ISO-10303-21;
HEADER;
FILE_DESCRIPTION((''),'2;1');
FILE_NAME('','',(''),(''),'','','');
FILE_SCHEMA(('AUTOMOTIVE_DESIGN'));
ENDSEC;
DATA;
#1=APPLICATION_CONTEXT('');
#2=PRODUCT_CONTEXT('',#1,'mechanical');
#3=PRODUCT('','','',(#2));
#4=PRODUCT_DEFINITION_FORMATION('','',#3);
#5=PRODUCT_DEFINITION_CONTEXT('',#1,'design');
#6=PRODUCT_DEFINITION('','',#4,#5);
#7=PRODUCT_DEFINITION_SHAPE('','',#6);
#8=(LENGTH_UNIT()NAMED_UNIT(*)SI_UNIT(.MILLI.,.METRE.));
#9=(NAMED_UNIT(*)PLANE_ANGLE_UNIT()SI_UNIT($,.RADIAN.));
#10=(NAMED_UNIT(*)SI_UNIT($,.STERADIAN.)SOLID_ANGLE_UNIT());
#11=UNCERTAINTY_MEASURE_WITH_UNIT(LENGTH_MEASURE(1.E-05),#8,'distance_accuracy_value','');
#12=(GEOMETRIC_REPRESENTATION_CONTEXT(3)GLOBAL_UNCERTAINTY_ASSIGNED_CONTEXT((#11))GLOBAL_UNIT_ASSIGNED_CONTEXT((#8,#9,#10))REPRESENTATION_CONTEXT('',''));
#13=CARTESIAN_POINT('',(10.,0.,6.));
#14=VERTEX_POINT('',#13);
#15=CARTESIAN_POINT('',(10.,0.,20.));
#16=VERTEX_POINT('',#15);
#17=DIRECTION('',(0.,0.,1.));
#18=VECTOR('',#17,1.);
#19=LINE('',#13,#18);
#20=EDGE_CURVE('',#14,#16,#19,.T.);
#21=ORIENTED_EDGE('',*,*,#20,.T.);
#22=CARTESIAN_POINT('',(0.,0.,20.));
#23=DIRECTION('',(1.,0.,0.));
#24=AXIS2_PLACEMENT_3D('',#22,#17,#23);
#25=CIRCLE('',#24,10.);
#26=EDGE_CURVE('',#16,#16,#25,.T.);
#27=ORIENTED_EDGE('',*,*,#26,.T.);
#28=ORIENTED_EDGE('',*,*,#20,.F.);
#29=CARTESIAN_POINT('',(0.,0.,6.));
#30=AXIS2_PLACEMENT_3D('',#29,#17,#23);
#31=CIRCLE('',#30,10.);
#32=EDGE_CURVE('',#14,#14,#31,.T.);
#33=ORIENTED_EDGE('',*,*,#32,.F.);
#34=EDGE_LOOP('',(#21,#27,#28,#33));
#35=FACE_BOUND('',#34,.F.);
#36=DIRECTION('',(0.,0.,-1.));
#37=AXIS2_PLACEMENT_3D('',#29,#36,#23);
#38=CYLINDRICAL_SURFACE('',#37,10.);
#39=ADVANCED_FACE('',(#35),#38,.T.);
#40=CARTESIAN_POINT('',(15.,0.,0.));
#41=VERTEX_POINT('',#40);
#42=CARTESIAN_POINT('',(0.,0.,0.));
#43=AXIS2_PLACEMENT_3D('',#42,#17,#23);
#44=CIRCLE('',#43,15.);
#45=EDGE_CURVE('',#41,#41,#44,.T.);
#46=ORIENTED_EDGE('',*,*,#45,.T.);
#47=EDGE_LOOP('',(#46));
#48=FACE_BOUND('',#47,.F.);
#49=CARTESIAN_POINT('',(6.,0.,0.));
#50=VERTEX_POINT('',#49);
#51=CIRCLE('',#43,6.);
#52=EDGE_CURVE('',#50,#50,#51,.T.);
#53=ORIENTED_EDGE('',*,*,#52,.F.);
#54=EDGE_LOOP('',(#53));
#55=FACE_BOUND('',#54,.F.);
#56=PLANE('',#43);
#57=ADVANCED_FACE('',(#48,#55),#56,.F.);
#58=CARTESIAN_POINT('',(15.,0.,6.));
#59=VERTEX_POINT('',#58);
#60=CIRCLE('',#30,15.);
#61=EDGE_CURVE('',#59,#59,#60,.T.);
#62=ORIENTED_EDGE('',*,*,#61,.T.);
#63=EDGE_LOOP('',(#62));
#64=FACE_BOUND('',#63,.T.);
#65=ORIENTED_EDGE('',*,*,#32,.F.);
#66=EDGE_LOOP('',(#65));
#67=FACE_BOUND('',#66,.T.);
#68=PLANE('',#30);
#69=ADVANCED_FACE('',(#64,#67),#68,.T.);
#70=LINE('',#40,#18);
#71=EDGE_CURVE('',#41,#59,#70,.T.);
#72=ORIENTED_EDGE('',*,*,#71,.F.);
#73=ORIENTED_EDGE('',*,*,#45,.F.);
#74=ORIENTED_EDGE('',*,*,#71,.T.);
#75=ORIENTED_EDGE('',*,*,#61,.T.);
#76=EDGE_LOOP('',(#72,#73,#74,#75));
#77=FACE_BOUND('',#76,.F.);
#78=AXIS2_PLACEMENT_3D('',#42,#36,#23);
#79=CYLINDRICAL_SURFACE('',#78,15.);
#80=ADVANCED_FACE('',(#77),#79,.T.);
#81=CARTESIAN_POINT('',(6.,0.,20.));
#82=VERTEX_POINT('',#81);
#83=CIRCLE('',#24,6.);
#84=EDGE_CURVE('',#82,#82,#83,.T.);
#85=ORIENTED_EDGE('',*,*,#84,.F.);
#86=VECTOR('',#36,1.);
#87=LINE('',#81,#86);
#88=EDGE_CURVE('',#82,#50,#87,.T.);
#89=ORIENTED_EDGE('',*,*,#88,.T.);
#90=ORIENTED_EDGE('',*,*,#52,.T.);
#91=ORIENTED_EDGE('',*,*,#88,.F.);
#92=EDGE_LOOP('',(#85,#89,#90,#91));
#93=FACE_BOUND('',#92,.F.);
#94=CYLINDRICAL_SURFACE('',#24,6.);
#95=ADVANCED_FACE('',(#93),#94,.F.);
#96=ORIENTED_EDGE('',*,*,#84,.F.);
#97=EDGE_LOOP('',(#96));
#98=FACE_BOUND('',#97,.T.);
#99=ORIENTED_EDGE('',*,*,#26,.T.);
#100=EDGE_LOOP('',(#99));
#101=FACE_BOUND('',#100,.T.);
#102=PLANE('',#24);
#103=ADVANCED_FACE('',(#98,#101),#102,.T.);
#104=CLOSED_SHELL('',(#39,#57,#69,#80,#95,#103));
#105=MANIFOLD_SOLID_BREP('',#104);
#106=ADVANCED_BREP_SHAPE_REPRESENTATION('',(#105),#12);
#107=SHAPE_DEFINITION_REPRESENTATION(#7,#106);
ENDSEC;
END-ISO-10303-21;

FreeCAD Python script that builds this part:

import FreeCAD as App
import Part
import Sketcher

V = App.Vector

doc = App.newDocument("Part")
body = doc.addObject("PartDesign::Body", "Body")

# Sketch on XY plane
sketch1 = body.newObject("Sketcher::SketchObject", "Sketch")
sketch1.AttachmentSupport = (doc.getObject("XY_Plane"), [""])
sketch1.MapMode = "FlatFace"
sketch1.addGeometry(Part.Circle(V(0, 0, 0), V(0, 0, 1), 15), False)
sketch1.addConstraint([
    Sketcher.Constraint("Coincident", 0, 3, -1, 1),
    Sketcher.Constraint("Diameter", 0, 30.0),
])
pad1 = body.newObject("PartDesign::Pad", "Pad")
pad1.Profile = sketch1
pad1.Length = 6

# Sketch on XY plane
sketch2 = body.newObject("Sketcher::SketchObject", "Sketch001")
sketch2.AttachmentSupport = (doc.getObject("XY_Plane"), [""])
sketch2.MapMode = "FlatFace"
sketch2.AttachmentOffset = App.Placement(V(0, 0, 6), App.Rotation())
sketch2.addGeometry(Part.Circle(V(0, 0, 0), V(0, 0, 1), 10), False)
sketch2.addConstraint([
    Sketcher.Constraint("Coincident", 0, 3, -1, 1),
    Sketcher.Constraint("Diameter", 0, 20.0),
])
pad2 = body.newObject("PartDesign::Pad", "Pad001")
pad2.Profile = sketch2
pad2.Length = 14

# Sketch on XY plane
sketch3 = body.newObject("Sketcher::SketchObject", "Sketch002")
sketch3.AttachmentSupport = (doc.getObject("XY_Plane"), [""])
sketch3.MapMode = "FlatFace"
sketch3.AttachmentOffset = App.Placement(V(0, 0, 20), App.Rotation())
sketch3.addGeometry(Part.Circle(V(0, 0, 0), V(0, 0, 1), 6), False)
sketch3.addConstraint([
    Sketcher.Constraint("Coincident", 0, 3, -1, 1),
    Sketcher.Constraint("Diameter", 0, 12.0),
])
pocket1 = body.newObject("PartDesign::Pocket", "Pocket")
pocket1.Profile = sketch3
pocket1.Length = 20

doc.recompute()
